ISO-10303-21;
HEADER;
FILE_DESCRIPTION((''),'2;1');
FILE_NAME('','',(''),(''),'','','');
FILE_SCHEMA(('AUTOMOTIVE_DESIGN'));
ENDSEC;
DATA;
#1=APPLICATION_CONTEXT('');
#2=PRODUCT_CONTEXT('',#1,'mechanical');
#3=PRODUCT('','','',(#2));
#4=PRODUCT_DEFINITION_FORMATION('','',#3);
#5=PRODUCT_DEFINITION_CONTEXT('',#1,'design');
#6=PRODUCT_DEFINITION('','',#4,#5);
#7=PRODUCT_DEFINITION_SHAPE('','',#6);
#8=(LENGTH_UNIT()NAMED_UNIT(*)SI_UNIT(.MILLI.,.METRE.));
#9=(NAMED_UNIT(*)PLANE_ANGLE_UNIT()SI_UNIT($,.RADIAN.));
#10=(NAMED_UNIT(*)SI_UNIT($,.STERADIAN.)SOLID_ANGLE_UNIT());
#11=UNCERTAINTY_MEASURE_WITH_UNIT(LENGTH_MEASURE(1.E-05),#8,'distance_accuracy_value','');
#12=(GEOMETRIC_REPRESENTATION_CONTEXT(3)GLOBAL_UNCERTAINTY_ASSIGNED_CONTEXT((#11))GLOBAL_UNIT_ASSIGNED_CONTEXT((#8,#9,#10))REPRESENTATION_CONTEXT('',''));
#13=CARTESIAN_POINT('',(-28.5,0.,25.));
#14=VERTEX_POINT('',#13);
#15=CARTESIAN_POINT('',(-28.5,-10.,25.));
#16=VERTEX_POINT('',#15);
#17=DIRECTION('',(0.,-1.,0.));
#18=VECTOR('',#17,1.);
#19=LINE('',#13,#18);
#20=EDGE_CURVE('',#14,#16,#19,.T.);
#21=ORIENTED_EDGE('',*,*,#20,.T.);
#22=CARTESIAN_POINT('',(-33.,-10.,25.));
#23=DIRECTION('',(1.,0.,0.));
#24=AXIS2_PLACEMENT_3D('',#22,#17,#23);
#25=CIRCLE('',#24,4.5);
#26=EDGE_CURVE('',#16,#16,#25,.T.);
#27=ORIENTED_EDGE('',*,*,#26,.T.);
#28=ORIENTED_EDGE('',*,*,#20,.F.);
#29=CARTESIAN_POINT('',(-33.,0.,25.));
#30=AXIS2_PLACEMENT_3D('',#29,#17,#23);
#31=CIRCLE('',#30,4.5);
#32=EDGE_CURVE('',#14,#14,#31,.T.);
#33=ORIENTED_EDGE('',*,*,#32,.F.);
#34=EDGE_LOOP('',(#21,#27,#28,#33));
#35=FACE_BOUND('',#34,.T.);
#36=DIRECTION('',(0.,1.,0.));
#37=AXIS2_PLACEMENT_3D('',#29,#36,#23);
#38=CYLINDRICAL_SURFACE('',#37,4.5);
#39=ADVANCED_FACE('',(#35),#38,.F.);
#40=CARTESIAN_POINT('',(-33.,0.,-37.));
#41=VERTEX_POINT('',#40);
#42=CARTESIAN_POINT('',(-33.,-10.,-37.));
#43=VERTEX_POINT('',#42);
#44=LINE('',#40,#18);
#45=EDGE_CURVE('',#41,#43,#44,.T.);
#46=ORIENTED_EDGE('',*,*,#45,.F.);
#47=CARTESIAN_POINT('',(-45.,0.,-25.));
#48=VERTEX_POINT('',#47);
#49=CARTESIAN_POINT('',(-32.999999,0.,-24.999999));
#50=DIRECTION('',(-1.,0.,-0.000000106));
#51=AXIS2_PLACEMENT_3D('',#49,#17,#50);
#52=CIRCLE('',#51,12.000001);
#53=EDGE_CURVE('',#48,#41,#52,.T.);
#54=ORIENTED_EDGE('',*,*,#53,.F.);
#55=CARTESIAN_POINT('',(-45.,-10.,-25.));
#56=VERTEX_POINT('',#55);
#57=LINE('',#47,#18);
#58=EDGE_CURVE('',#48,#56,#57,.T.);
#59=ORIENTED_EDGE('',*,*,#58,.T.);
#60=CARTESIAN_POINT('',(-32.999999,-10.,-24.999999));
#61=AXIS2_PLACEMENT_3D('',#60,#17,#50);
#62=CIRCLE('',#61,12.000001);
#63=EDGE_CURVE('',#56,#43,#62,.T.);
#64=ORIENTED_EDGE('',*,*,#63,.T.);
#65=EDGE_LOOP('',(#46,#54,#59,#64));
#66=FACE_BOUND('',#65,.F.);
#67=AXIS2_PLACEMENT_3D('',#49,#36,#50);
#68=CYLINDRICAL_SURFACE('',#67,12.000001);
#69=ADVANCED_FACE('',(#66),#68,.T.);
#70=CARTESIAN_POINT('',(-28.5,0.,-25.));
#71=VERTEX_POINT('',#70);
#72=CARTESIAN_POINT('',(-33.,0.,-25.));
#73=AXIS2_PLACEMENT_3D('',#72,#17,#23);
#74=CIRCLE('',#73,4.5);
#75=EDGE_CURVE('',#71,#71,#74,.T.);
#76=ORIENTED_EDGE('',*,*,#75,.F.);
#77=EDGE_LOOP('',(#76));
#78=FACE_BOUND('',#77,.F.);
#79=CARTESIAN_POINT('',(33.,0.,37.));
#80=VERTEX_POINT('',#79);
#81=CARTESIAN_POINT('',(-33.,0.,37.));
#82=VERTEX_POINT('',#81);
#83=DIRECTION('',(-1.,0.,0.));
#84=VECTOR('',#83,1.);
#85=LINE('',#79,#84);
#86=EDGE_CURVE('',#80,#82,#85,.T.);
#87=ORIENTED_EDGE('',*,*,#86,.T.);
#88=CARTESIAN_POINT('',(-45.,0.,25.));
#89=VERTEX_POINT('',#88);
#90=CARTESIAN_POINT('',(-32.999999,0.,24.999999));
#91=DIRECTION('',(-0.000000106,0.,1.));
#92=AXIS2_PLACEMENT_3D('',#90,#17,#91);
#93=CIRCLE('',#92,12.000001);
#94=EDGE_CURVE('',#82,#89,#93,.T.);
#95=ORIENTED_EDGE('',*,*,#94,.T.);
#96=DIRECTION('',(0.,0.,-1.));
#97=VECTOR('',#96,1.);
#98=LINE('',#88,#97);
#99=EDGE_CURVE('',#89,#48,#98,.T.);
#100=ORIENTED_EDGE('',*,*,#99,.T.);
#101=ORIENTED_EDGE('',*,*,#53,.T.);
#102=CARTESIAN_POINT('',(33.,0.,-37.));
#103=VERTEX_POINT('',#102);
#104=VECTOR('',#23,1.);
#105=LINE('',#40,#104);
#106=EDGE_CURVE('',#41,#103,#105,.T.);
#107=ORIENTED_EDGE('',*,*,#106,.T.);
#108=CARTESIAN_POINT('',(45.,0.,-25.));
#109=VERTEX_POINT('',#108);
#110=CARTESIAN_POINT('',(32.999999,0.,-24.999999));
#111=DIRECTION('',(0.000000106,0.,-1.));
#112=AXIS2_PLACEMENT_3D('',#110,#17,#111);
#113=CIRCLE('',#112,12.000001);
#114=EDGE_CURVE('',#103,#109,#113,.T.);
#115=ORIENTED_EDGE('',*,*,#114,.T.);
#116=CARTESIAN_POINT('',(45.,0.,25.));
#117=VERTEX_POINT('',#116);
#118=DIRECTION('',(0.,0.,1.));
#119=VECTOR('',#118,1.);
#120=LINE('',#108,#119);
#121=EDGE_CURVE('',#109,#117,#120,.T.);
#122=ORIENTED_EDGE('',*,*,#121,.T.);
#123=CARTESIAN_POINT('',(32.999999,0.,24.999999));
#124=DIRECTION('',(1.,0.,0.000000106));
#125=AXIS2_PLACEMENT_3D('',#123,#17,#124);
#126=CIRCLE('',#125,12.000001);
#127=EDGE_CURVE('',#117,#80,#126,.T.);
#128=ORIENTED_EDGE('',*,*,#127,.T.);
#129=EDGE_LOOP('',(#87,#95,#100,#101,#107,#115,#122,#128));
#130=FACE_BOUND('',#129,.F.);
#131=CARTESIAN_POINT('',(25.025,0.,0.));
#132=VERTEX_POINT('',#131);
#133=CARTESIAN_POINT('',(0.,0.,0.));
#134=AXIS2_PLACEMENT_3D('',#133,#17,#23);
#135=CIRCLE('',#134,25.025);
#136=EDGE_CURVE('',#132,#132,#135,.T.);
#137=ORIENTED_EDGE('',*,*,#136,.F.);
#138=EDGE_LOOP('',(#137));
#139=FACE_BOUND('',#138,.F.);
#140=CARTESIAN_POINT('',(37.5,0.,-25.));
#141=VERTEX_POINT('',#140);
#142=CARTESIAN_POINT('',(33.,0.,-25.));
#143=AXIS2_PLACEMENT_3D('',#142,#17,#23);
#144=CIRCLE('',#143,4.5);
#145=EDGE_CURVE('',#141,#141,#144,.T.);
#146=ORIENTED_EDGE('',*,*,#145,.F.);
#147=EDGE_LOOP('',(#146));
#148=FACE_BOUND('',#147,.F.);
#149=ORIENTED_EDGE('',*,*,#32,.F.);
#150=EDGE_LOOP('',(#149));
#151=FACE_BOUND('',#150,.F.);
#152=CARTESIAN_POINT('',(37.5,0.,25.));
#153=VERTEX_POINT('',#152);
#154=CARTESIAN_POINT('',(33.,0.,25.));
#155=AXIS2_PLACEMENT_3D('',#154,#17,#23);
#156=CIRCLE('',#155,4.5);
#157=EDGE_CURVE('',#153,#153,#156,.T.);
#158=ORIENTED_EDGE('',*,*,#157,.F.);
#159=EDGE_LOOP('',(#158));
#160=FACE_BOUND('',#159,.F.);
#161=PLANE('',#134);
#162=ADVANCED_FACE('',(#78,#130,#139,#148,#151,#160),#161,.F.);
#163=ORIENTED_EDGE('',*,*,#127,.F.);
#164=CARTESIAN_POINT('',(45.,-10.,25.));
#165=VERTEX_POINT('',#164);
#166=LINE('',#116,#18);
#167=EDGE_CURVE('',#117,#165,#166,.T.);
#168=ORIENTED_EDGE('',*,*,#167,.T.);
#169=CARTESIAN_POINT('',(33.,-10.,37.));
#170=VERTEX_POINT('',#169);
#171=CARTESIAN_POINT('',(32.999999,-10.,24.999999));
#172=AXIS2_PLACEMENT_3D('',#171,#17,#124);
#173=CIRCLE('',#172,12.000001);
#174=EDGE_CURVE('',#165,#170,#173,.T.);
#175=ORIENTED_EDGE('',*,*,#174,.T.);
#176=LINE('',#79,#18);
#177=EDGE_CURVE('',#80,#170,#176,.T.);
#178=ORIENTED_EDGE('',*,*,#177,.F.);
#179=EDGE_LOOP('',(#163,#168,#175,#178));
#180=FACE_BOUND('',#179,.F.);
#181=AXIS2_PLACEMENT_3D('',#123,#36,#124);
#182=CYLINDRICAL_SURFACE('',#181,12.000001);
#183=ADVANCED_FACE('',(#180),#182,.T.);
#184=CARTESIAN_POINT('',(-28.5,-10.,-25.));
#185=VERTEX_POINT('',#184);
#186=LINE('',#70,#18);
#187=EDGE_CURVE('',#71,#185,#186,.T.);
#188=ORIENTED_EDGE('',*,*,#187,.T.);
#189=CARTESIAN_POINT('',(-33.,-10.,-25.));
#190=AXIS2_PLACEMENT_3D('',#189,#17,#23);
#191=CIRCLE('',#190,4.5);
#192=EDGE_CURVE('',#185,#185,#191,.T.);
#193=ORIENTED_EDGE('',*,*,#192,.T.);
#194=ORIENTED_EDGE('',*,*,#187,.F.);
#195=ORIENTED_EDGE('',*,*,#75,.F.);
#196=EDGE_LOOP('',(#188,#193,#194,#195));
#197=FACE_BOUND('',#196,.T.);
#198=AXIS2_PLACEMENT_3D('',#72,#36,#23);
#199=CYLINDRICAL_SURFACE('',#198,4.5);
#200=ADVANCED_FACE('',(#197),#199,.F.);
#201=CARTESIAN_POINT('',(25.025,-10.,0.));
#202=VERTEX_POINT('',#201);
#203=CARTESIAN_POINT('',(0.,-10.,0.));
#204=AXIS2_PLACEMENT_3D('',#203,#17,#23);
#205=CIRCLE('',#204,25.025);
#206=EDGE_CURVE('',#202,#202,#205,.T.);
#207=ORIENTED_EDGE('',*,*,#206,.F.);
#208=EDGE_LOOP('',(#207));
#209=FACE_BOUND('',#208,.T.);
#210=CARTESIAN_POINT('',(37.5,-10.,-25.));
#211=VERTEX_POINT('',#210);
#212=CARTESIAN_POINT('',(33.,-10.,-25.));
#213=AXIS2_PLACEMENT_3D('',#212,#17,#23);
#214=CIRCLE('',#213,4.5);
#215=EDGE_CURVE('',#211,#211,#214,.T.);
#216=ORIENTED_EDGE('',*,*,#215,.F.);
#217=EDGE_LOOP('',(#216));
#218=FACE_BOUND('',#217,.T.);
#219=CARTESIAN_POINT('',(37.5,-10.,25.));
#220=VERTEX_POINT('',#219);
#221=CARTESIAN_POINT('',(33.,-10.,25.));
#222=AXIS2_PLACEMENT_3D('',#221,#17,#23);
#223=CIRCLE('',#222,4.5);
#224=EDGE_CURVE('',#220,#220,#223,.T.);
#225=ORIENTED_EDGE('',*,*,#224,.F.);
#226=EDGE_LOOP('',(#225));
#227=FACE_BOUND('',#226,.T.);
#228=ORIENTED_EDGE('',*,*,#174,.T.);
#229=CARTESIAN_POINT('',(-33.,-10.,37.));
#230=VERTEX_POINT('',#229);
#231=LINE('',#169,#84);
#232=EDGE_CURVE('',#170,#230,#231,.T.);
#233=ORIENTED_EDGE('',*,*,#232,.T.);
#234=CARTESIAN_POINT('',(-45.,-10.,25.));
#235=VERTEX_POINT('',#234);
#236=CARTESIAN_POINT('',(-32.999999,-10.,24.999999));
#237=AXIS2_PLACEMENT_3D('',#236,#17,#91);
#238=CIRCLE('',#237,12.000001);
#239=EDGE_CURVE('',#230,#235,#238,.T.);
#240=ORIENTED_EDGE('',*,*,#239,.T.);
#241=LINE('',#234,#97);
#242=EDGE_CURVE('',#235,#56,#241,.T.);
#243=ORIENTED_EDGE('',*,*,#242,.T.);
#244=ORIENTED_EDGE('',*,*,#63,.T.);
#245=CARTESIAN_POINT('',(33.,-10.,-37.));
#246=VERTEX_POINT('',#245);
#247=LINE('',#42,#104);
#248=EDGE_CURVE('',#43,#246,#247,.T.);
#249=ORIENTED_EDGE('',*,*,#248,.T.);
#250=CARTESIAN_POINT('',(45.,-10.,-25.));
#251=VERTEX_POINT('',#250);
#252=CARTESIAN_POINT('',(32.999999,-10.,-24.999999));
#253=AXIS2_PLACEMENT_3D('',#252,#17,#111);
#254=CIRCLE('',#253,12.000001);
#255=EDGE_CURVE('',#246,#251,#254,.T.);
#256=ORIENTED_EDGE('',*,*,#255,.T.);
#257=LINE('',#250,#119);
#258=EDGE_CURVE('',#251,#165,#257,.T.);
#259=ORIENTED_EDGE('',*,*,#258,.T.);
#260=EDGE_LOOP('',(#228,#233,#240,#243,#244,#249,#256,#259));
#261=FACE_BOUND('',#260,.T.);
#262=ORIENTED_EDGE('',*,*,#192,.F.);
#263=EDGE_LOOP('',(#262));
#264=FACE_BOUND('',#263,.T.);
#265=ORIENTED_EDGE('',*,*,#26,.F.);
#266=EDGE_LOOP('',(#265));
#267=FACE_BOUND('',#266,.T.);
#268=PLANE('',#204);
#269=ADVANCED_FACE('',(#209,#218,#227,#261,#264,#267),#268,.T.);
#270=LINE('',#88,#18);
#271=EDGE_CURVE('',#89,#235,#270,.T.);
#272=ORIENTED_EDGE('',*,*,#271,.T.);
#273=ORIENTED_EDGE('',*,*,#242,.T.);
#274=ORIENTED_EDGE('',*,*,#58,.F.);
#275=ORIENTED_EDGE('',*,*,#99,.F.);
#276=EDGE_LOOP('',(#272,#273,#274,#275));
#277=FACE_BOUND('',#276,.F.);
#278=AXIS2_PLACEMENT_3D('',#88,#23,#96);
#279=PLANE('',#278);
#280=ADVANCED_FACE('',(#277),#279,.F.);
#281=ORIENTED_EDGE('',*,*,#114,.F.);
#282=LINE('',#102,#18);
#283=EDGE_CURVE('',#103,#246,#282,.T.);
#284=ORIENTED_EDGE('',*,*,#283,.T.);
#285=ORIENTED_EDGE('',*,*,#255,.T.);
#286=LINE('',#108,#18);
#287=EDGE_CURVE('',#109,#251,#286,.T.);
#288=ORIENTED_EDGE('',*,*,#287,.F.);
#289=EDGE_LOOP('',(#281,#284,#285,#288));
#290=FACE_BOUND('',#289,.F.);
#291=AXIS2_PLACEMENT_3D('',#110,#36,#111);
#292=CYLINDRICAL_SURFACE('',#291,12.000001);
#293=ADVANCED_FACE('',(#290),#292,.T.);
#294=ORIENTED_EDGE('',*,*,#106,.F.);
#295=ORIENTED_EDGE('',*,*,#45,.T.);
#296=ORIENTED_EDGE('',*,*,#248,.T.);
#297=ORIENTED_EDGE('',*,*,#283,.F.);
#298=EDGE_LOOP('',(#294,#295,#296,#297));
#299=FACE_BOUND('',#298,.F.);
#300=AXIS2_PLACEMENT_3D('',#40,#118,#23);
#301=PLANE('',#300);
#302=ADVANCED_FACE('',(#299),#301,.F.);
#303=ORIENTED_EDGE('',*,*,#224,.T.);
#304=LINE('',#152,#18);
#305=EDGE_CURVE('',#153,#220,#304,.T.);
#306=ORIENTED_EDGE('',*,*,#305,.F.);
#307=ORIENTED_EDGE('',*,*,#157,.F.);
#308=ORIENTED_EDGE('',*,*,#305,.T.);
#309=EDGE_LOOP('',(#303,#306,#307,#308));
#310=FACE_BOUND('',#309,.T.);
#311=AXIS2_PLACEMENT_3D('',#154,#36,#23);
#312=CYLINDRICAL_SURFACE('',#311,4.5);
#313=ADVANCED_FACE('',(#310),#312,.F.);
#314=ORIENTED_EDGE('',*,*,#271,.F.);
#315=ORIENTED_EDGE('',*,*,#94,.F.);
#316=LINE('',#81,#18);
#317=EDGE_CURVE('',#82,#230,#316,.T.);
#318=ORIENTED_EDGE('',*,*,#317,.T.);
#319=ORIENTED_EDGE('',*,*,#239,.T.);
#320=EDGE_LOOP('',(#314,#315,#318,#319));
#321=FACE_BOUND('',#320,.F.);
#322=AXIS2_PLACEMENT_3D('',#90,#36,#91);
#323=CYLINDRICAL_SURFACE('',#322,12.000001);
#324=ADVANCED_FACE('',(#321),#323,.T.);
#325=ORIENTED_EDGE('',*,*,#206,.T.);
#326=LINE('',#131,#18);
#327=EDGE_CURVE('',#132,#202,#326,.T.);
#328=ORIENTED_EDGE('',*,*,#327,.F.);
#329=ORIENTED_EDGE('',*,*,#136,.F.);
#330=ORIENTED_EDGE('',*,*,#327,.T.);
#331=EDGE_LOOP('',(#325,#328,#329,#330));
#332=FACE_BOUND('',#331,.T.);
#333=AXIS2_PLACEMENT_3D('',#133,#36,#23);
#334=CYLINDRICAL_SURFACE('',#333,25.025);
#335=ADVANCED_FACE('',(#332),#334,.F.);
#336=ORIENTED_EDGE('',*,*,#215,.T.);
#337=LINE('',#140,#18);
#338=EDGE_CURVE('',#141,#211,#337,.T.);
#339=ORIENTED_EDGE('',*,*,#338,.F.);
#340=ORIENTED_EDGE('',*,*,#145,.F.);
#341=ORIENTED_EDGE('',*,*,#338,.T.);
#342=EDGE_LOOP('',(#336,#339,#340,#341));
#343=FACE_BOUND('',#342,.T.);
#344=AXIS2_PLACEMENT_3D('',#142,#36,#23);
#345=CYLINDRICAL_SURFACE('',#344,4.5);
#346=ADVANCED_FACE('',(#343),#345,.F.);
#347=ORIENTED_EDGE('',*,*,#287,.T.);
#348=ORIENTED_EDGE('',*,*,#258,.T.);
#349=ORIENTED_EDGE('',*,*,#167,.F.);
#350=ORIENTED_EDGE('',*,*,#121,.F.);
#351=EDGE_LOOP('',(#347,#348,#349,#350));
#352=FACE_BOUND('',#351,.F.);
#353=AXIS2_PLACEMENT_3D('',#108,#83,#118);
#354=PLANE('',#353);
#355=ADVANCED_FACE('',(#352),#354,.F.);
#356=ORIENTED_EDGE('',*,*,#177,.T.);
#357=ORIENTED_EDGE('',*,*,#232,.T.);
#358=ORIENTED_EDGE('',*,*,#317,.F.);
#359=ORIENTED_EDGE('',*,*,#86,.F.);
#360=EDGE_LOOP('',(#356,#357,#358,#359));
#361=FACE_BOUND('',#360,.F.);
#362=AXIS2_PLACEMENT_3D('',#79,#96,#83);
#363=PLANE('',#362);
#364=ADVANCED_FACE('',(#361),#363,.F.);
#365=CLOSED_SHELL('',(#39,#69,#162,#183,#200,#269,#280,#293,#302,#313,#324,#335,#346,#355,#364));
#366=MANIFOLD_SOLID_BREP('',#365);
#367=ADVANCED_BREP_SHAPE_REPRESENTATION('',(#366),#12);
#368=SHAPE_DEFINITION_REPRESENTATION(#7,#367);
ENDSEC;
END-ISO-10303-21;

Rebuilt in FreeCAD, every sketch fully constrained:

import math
import FreeCAD as App
import Part
import Sketcher

V = App.Vector

doc = App.newDocument("Part")
body = doc.addObject("PartDesign::Body", "Body")

# Sketch on XZ plane
sketch1 = body.newObject("Sketcher::SketchObject", "Sketch")
sketch1.AttachmentSupport = (doc.getObject("XZ_Plane"), [""])
sketch1.MapMode = "FlatFace"
sketch1.addGeometry([
    Part.ArcOfCircle(Part.Circle(V(-32.999999, 24.999999, 0), V(0, 0, 1), 12.000001), math.radians(90.000006), math.radians(179.999994)),  # 0
    Part.LineSegment(V(-45, 25, 0), V(-45, -25, 0)),  # 1
    Part.ArcOfCircle(Part.Circle(V(-32.999999, -24.999999, 0), V(0, 0, 1), 12.000001), math.radians(-179.999994), math.radians(-90.000006)),  # 2
    Part.LineSegment(V(-33, -37, 0), V(33, -37, 0)),  # 3
    Part.ArcOfCircle(Part.Circle(V(32.999999, -24.999999, 0), V(0, 0, 1), 12.000001), math.radians(-89.999994), math.radians(-0.000006)),  # 4
    Part.LineSegment(V(45, -25, 0), V(45, 25, 0)),  # 5
    Part.ArcOfCircle(Part.Circle(V(32.999999, 24.999999, 0), V(0, 0, 1), 12.000001), math.radians(0.000006), math.radians(89.999994)),  # 6
    Part.LineSegment(V(33, 37, 0), V(-33, 37, 0)),  # 7
    Part.Circle(V(-33, -25, 0), V(0, 0, 1), 4.5),  # 8
    Part.Circle(V(33, -25, 0), V(0, 0, 1), 4.5),  # 9
    Part.Circle(V(-33, 25, 0), V(0, 0, 1), 4.5),  # 10
    Part.Circle(V(0, 0, 0), V(0, 0, 1), 25.025),  # 11
    Part.Circle(V(33, 25, 0), V(0, 0, 1), 4.5),  # 12
], False)
sketch1.addConstraint([
    Sketcher.Constraint("Tangent", 0, 2, 1, 1),
    Sketcher.Constraint("Tangent", 1, 2, 2, 1),
    Sketcher.Constraint("Tangent", 2, 2, 3, 1),
    Sketcher.Constraint("Tangent", 3, 2, 4, 1),
    Sketcher.Constraint("Tangent", 4, 2, 5, 1),
    Sketcher.Constraint("Tangent", 5, 2, 6, 1),
    Sketcher.Constraint("Tangent", 6, 2, 7, 1),
    Sketcher.Constraint("Tangent", 7, 2, 0, 1),
    Sketcher.Constraint("Vertical", 1),
    Sketcher.Constraint("Horizontal", 3),
    Sketcher.Constraint("Vertical", 5),
    Sketcher.Constraint("Horizontal", 7),
    Sketcher.Constraint("Coincident", 11, 3, -1, 1),
    Sketcher.Constraint("Coincident", 8, 3, 2, 3),
    Sketcher.Constraint("Coincident", 9, 3, 4, 3),
    Sketcher.Constraint("Coincident", 10, 3, 0, 3),
    Sketcher.Constraint("Coincident", 12, 3, 6, 3),
    Sketcher.Constraint("Equal", 0, 2),
    Sketcher.Constraint("Equal", 2, 4),
    Sketcher.Constraint("Equal", 4, 6),
    Sketcher.Constraint("Equal", 8, 9),
    Sketcher.Constraint("Equal", 9, 10),
    Sketcher.Constraint("Equal", 10, 12),
    Sketcher.Constraint("Symmetric", 0, 3, 4, 3, -1, 1),
    Sketcher.Constraint("Diameter", 8, 9.0),
    Sketcher.Constraint("Radius", 0, 12.000001),
    Sketcher.Constraint("Diameter", 11, 50.05),
    Sketcher.Constraint("DistanceX", 3, 1, 3, 2, 66.0),
    Sketcher.Constraint("DistanceY", 1, 2, 1, 1, 50.0),
])
pad1 = body.newObject("PartDesign::Pad", "Pad")
pad1.Profile = sketch1
pad1.Length = 10

doc.recompute()
